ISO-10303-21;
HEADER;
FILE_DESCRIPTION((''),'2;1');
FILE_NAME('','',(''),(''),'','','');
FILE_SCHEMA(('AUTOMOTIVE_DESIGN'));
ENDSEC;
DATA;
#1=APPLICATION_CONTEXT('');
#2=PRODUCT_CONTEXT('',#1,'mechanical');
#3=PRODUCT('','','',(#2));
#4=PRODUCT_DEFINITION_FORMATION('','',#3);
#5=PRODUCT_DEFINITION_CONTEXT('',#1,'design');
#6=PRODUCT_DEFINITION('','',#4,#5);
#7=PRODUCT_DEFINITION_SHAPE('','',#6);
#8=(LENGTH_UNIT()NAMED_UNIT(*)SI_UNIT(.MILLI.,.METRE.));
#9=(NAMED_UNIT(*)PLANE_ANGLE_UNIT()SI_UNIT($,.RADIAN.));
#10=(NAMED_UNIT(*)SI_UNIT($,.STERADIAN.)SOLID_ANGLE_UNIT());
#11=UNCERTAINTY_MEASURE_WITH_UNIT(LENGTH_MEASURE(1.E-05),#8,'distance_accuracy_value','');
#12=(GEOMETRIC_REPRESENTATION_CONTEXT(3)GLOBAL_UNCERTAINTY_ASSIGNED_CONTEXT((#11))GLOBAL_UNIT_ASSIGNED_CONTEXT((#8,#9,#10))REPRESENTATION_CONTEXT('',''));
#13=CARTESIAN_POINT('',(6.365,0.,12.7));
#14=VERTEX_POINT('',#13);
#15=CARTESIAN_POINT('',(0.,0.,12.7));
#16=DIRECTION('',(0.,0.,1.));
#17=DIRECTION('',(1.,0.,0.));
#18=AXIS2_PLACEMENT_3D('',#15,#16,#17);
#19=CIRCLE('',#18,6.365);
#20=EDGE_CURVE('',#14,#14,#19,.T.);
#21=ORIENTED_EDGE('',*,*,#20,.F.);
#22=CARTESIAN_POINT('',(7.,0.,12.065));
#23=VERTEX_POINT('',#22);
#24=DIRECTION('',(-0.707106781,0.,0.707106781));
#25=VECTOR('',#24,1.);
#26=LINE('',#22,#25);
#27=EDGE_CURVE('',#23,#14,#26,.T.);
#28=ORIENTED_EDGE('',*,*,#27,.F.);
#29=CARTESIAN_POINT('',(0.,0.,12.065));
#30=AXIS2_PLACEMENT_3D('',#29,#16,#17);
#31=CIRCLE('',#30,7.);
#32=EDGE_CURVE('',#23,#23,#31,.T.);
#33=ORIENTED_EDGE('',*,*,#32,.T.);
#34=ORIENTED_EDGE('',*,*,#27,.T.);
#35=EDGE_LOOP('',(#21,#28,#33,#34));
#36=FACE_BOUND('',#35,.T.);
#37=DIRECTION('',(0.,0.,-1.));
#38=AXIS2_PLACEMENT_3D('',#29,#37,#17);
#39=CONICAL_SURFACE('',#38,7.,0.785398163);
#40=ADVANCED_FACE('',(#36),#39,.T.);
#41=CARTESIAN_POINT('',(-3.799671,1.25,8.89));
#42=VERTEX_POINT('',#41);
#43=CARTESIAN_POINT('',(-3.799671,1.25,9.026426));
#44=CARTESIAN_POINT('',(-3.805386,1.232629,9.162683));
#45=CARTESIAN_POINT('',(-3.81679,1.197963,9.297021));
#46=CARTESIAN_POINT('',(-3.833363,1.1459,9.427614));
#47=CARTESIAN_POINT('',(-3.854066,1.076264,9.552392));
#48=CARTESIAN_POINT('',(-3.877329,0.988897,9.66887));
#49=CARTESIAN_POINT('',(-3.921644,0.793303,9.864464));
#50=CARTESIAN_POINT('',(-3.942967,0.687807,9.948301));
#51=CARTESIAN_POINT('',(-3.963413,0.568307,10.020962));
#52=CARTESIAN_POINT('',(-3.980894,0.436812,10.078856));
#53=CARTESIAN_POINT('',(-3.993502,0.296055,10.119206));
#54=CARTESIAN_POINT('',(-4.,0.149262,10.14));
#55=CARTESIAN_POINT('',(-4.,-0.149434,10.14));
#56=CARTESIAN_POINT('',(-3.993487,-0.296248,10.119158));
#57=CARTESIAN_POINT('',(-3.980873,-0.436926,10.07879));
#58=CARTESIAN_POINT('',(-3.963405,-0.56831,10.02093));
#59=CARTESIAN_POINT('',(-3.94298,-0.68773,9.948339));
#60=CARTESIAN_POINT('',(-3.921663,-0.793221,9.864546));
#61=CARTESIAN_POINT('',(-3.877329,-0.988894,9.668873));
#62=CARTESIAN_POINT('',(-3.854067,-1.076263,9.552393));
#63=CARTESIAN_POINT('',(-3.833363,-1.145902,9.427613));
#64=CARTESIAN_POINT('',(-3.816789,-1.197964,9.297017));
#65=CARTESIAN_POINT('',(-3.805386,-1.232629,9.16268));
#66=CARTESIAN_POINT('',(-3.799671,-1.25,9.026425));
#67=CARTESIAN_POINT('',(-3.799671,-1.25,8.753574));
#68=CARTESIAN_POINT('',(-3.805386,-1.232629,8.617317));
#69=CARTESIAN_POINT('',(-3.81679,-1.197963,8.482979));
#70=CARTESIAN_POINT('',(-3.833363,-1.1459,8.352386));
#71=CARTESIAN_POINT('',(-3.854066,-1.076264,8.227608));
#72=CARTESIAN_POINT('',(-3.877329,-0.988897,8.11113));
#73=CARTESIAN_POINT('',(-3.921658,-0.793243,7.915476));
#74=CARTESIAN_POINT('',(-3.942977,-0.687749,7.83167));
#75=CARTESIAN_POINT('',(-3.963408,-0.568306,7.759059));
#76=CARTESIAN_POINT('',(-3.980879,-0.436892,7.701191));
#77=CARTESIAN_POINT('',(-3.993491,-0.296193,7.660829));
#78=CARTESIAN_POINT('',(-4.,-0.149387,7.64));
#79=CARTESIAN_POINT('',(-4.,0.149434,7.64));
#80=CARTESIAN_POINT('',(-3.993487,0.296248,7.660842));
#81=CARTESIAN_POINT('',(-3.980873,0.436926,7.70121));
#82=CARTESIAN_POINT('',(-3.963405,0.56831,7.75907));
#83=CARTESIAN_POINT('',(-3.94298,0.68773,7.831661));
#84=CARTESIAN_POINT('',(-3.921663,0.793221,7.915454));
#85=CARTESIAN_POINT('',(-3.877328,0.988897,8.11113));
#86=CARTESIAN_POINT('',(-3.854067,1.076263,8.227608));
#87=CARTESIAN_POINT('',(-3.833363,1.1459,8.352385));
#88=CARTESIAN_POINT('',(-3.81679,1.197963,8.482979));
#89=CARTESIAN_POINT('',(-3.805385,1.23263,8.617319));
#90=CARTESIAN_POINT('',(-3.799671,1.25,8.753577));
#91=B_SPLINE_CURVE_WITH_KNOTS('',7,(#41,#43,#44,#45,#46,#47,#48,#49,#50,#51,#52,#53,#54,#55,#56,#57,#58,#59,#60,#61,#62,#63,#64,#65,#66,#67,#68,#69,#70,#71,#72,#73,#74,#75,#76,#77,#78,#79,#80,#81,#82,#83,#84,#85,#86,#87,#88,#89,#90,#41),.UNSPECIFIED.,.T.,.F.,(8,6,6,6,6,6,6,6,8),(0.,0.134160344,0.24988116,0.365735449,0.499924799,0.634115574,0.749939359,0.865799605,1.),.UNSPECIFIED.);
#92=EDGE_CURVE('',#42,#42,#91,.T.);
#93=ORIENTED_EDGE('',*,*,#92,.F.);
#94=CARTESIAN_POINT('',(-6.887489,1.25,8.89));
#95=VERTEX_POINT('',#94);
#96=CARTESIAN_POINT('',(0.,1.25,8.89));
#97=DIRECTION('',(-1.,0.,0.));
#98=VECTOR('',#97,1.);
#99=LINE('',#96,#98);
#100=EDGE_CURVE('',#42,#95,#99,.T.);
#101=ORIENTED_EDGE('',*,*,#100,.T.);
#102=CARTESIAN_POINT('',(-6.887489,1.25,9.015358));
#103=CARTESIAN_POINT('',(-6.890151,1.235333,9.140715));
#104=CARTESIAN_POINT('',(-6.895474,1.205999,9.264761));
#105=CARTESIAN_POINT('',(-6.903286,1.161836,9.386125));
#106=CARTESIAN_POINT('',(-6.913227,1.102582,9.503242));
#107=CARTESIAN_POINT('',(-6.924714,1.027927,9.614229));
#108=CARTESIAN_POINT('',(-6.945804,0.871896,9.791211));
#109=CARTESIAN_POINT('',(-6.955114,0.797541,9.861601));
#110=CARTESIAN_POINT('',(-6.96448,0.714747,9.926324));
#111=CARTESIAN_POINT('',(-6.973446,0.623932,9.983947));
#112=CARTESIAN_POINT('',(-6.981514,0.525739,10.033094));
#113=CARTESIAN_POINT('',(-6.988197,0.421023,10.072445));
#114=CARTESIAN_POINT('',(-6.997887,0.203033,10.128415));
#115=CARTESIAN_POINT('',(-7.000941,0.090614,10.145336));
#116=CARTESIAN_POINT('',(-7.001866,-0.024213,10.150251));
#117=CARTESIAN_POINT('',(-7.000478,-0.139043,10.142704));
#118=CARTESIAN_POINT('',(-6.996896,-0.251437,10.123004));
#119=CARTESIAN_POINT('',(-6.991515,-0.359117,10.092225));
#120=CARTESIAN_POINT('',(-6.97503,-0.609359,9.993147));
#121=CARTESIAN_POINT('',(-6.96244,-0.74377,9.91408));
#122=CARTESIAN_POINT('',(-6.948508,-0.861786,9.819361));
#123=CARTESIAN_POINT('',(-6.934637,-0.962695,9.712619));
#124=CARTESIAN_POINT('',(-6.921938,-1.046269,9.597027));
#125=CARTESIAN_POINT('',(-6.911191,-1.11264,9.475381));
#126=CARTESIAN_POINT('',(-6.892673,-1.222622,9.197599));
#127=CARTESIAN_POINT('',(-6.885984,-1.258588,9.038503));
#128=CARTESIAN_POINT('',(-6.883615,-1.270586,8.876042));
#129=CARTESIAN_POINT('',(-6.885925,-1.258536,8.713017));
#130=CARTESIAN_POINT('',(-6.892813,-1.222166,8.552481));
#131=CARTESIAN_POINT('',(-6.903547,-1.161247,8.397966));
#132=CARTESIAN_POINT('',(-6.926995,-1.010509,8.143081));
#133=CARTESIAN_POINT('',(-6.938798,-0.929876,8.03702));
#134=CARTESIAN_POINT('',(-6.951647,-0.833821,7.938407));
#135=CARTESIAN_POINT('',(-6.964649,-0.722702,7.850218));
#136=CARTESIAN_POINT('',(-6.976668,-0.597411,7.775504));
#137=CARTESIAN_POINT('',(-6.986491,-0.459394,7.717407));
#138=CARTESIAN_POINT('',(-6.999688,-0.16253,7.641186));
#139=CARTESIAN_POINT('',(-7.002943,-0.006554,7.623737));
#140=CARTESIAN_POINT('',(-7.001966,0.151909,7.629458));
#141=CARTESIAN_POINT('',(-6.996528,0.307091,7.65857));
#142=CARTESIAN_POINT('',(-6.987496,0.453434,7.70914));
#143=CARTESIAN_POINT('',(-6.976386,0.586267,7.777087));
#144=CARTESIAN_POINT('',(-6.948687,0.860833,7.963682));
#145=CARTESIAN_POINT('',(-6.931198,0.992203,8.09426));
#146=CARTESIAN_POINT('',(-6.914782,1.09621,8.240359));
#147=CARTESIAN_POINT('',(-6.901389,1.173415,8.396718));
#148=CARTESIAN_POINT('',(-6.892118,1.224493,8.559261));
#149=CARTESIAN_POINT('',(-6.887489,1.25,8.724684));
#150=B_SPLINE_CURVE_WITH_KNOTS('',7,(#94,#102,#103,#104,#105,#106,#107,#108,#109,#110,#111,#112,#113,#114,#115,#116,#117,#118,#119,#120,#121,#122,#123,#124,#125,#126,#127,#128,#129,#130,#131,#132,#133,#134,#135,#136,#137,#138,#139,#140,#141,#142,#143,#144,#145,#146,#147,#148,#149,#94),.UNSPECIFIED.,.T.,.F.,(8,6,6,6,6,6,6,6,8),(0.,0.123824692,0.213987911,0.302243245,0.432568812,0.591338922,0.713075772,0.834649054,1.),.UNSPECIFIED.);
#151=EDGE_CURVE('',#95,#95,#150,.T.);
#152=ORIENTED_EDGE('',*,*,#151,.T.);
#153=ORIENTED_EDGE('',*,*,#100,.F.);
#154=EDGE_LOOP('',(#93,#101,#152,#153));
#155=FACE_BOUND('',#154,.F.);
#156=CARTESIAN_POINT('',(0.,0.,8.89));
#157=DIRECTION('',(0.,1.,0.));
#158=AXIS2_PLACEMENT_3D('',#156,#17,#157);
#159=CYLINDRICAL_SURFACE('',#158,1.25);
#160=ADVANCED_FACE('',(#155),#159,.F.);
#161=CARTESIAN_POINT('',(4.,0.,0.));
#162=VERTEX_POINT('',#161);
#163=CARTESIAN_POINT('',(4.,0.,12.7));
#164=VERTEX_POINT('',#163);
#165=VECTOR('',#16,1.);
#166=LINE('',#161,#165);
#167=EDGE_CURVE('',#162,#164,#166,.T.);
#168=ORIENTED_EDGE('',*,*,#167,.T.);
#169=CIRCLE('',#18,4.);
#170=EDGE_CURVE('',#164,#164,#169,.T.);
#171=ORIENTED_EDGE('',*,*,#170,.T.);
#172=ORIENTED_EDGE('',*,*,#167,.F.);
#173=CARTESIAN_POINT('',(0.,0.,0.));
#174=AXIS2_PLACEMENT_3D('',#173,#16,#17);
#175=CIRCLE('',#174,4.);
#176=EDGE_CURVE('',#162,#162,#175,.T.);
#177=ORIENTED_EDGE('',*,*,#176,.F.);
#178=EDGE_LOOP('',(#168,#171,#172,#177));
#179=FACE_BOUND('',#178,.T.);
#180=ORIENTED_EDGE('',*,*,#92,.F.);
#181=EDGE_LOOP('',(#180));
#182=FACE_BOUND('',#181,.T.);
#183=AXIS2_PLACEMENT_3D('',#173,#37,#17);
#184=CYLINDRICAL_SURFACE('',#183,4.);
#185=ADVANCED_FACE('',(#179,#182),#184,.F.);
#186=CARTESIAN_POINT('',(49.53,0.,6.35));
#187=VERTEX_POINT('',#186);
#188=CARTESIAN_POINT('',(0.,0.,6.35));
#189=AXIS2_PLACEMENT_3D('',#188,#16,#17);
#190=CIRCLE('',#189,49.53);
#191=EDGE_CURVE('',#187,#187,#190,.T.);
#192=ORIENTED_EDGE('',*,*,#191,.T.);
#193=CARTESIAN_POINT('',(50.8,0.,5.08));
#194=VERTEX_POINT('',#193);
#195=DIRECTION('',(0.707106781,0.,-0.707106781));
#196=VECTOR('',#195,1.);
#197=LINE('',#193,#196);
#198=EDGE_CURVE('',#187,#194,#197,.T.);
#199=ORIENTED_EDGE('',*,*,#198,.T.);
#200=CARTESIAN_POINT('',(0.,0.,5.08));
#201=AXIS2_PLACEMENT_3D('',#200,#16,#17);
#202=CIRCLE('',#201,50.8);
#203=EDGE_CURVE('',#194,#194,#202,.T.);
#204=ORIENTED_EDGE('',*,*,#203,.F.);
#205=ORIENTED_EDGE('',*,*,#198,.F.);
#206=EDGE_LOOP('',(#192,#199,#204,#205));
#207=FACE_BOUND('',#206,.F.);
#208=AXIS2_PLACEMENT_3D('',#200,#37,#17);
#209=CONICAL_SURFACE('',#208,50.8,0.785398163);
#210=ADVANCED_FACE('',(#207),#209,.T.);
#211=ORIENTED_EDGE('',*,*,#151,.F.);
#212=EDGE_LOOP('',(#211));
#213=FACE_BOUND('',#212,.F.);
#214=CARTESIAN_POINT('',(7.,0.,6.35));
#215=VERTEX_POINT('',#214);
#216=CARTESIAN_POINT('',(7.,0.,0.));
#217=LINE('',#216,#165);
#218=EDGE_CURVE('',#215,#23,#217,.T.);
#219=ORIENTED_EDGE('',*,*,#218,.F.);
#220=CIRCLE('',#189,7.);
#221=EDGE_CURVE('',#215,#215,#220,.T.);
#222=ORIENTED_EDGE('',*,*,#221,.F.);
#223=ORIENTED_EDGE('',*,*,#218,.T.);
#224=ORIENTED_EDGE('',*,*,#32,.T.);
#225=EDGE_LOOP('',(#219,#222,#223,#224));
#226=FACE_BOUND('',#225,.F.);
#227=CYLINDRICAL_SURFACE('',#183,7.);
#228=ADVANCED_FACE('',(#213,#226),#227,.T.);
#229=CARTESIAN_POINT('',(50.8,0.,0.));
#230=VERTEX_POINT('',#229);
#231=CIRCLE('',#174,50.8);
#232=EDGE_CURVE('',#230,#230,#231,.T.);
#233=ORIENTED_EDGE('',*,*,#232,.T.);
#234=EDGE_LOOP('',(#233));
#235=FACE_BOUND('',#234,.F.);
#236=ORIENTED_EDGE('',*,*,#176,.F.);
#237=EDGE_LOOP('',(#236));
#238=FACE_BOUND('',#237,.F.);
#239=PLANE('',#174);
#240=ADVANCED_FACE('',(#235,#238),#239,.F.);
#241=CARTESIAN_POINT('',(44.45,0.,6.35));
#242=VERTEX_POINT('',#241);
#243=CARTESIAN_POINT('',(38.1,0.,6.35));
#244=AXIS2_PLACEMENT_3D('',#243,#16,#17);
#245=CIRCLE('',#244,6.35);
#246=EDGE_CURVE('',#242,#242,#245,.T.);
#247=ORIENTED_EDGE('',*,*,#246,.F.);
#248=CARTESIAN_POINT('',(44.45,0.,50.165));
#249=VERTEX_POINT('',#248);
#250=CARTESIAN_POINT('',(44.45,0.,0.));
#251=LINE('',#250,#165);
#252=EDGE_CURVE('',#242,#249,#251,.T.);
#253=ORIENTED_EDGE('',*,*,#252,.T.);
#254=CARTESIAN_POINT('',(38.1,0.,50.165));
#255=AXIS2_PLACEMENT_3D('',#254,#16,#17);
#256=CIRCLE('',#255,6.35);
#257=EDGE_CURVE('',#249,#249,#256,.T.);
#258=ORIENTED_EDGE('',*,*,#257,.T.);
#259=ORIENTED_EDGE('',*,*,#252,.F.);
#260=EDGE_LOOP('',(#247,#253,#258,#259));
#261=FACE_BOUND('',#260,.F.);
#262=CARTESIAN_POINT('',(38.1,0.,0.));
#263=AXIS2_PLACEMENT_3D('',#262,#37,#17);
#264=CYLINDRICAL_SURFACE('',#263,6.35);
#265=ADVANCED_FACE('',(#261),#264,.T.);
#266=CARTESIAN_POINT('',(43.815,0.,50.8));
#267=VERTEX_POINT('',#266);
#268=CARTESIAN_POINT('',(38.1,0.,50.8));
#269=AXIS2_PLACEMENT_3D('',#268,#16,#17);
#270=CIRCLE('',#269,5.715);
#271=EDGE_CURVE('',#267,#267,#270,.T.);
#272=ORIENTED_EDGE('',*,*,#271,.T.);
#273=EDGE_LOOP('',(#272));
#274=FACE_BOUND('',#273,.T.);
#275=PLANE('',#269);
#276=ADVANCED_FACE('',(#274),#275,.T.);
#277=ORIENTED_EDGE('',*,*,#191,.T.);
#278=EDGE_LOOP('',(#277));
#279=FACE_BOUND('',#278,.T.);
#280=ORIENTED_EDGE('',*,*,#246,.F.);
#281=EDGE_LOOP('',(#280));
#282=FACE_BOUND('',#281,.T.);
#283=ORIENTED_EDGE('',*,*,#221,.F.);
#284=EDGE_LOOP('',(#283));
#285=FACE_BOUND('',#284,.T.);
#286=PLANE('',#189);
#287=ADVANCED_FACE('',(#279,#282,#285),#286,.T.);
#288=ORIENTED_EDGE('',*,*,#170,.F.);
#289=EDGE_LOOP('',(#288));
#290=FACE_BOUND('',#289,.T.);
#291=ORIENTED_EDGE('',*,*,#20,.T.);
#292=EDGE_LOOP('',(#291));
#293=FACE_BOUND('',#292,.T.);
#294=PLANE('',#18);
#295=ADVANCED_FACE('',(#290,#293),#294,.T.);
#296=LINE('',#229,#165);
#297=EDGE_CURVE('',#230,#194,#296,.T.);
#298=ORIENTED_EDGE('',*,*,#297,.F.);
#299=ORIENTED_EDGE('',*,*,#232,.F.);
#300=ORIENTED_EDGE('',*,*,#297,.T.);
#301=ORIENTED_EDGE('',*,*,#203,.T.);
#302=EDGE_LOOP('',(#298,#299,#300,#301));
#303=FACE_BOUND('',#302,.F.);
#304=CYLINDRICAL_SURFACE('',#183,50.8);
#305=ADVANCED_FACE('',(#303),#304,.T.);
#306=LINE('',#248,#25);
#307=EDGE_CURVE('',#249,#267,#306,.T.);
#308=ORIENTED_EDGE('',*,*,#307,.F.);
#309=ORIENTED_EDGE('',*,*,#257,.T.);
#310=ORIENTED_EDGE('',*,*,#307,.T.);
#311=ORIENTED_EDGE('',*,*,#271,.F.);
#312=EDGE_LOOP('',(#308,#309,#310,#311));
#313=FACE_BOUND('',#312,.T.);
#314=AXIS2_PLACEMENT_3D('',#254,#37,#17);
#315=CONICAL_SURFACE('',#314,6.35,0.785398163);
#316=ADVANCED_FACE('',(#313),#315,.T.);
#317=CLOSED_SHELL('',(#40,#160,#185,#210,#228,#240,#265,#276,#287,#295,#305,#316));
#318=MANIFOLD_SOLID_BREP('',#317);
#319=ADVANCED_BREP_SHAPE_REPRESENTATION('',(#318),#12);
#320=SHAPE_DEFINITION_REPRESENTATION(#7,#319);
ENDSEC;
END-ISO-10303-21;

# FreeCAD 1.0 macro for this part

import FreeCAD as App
import Part
import Sketcher
Q = App.Units.Quantity


def edges_at(feature, points):
    """Names of the edges that pass closest to the given points."""
    edges = feature.Shape.Edges
    near = lambda p: min(range(len(edges)), key=lambda i: edges[i].distToShape(Part.Vertex(*p))[0])
    return sorted({f"Edge{near(p) + 1}" for p in points})

doc = App.newDocument("Part")
body = doc.addObject("PartDesign::Body", "Body")

# Sketch on XY plane
sketch1 = doc.addObject("Sketcher::SketchObject", "Sketch")
body.addObject(sketch1)
sketch1.AttachmentSupport = (doc.XY_Plane, [""])
sketch1.MapMode = "FlatFace"
sketch1.addGeometry([
    Part.Circle(App.Vector(0, 0, 0), App.Vector(0, 0, 1), 51),
    Part.Circle(App.Vector(0, 0, 0), App.Vector(0, 0, 1), 7),
    Part.Circle(App.Vector(38, 0, 0), App.Vector(0, 0, 1), 6),
], False)
sketch1.addConstraint([
    Sketcher.Constraint("Coincident", 0, 3, -1, 1),
    Sketcher.Constraint("Coincident", 1, 3, -1, 1),
    Sketcher.Constraint("PointOnObject", 2, 3, -1),
    Sketcher.Constraint("Diameter", 0, Q("4 in")),
    Sketcher.Constraint("Diameter", 2, Q("0.5 in")),
    Sketcher.Constraint("DistanceX", -1, 1, 2, 3, Q("1.5 in")),
    Sketcher.Constraint("Diameter", 1, Q("14 mm")),
])
pad1 = doc.addObject("PartDesign::Pad", "Pad")
body.addObject(pad1)
pad1.Profile = sketch1
pad1.Length = Q("0.25 in")

# Sketch on XY plane
sketch2 = doc.addObject("Sketcher::SketchObject", "Sketch001")
body.addObject(sketch2)
sketch2.AttachmentSupport = (doc.XY_Plane, [""])
sketch2.MapMode = "FlatFace"
sketch2.addGeometry(Part.Circle(App.Vector(38, 0, 0), App.Vector(0, 0, 1), 6), False)
sketch2.addConstraint([
    Sketcher.Constraint("PointOnObject", 0, 3, -1),
    Sketcher.Constraint("Diameter", 0, Q("0.5 in")),
    Sketcher.Constraint("DistanceX", -1, 1, 0, 3, Q("1.5 in")),
])
pad2 = doc.addObject("PartDesign::Pad", "Pad001")
body.addObject(pad2)
pad2.Profile = sketch2
pad2.Length = Q("2 in")

# Sketch on XY plane
sketch3 = doc.addObject("Sketcher::SketchObject", "Sketch002")
body.addObject(sketch3)
sketch3.AttachmentSupport = (doc.XY_Plane, [""])
sketch3.MapMode = "FlatFace"
sketch3.addGeometry([
    Part.Circle(App.Vector(0, 0, 0), App.Vector(0, 0, 1), 7),
    Part.Circle(App.Vector(0, 0, 0), App.Vector(0, 0, 1), 4),
], False)
sketch3.addConstraint([
    Sketcher.Constraint("Coincident", 0, 3, -1, 1),
    Sketcher.Constraint("Coincident", 1, 3, -1, 1),
    Sketcher.Constraint("Diameter", 0, Q("14 mm")),
    Sketcher.Constraint("Diameter", 1, Q("8 mm")),
])
pad3 = doc.addObject("PartDesign::Pad", "Pad002")
body.addObject(pad3)
pad3.Profile = sketch3
pad3.Length = Q("0.5 in")
doc.recompute()

chamfer = doc.addObject("PartDesign::Chamfer", "Chamfer")
body.addObject(chamfer)
chamfer.Base = (pad3, edges_at(pad3, [(31.75, 0, 50.8), (-7, 0, 12.7)]))
chamfer.Size = Q("0.025 in")

# Sketch on YZ plane
sketch4 = doc.addObject("Sketcher::SketchObject", "Sketch003")
body.addObject(sketch4)
sketch4.AttachmentSupport = (doc.YZ_Plane, [""])
sketch4.MapMode = "FlatFace"
sketch4.addGeometry(Part.Circle(App.Vector(0, 8.9, 0), App.Vector(0, 0, 1), 1.2), False)
sketch4.addConstraint([
    Sketcher.Constraint("PointOnObject", 0, 3, -2),
    Sketcher.Constraint("Diameter", 0, Q("2.5 mm")),
    Sketcher.Constraint("DistanceY", -1, 1, 0, 3, Q("0.35 in")),
])
pocket1 = doc.addObject("PartDesign::Pocket", "Pocket")
body.addObject(pocket1)
pocket1.Profile = sketch4
pocket1.Length = Q("1 in")
doc.recompute()

chamfer2 = doc.addObject("PartDesign::Chamfer", "Chamfer001")
body.addObject(chamfer2)
chamfer2.Base = (pocket1, edges_at(pocket1, [(-50.8, 0, 6.35)]))
chamfer2.Size = Q("0.05 in")

doc.recompute()
